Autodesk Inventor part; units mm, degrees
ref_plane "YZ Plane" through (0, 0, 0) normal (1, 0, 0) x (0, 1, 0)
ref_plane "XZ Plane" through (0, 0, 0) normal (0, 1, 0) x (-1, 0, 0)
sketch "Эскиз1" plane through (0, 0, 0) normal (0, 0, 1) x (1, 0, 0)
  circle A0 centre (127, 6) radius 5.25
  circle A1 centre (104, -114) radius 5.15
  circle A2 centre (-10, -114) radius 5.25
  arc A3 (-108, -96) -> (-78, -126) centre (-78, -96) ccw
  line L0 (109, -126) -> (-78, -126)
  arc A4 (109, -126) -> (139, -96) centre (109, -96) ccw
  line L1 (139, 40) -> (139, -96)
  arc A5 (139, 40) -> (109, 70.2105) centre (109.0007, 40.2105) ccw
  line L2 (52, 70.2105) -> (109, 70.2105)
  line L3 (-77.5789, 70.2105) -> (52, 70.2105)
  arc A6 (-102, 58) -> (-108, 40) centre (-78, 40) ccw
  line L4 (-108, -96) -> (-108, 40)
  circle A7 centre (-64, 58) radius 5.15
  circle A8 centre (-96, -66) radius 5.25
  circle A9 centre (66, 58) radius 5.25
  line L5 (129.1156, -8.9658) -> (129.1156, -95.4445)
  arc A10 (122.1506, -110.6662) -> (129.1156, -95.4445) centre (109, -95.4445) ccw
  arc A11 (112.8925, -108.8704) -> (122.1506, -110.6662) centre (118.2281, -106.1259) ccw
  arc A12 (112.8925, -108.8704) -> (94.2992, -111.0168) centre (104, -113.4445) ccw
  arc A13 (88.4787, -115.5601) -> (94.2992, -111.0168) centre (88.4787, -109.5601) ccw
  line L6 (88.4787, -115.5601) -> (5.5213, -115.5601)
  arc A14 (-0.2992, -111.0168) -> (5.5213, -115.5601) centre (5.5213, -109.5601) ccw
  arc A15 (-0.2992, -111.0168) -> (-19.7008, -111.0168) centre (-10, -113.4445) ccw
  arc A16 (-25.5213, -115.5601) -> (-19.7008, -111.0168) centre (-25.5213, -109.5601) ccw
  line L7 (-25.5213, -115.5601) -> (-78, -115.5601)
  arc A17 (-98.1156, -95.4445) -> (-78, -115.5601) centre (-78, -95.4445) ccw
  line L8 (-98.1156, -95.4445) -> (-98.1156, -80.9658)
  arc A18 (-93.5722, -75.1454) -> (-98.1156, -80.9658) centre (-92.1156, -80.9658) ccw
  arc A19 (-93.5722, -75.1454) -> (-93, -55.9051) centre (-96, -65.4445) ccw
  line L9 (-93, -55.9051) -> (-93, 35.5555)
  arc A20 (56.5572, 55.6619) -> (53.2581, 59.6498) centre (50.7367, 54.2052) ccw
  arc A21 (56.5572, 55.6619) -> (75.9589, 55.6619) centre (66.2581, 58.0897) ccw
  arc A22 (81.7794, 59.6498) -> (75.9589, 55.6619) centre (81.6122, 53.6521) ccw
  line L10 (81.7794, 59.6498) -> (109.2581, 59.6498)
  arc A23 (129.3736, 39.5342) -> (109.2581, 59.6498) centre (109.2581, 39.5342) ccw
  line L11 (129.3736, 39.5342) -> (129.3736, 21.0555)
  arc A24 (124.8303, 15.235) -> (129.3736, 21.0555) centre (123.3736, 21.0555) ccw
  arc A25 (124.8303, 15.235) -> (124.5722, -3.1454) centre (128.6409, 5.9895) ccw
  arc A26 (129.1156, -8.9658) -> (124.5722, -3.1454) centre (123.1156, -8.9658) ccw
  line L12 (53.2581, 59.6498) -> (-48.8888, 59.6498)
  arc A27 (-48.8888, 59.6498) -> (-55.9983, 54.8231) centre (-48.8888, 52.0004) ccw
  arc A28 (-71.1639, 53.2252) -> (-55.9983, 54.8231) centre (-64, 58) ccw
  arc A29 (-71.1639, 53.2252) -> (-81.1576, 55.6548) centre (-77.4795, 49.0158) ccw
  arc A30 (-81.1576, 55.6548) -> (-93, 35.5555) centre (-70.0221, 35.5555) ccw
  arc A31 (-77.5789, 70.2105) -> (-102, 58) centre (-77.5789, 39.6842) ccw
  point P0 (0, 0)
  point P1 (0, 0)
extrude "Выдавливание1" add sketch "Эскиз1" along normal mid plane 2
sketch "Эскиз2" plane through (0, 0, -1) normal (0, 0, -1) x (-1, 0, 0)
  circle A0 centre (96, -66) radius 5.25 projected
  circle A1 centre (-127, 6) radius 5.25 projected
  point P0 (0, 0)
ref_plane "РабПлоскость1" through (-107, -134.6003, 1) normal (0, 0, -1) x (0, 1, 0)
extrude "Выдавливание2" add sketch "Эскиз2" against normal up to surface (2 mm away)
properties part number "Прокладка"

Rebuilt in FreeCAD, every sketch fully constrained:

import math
import FreeCAD as App
import Part
import Sketcher

V = App.Vector

doc = App.newDocument("Part")
params = doc.addObject("Spreadsheet::Sheet", "Params")
for row, (alias, value) in enumerate([
    ("sketch1_radius", "30 mm"),
    ("sketch1_radius2", "30 mm"),
    ("sketch1_radius3", "30 mm"),
    ("sketch1_radius4", "30 mm"),
    ("sketch1_radius5", "6 mm"),
    ("pad1_length", "2 mm"),
    ("sketch2_diameter", "10.5 mm"),
    ("pad2_length", "2 mm"),
], start=1):
    params.set(f"A{row}", alias)
    params.set(f"B{row}", "=" + value)
    params.setAlias(f"B{row}", alias)

body = doc.addObject("PartDesign::Body", "Body")

# Sketch on XY plane
sketch1 = body.newObject("Sketcher::SketchObject", "Sketch")
sketch1.AttachmentSupport = (doc.getObject("XY_Plane"), [""])
sketch1.MapMode = "FlatFace"
sketch1.addGeometry([
    Part.LineSegment(V(-108, 40, 0), V(-108, -96, 0)),  # 0
    Part.ArcOfCircle(Part.Circle(V(-78, -96, 0), V(0, 0, 1), 30), math.radians(180), math.radians(270)),  # 1
    Part.LineSegment(V(-78, -126, 0), V(109, -126, 0)),  # 2
    Part.ArcOfCircle(Part.Circle(V(109, -96, 0), V(0, 0, 1), 30), math.radians(-90), math.radians(0)),  # 3
    Part.LineSegment(V(139, -96, 0), V(139, 40, 0)),  # 4
    Part.ArcOfCircle(Part.Circle(V(109.0007, 40.2105, 0), V(0, 0, 1), 30.000039), math.radians(-0.402028), math.radians(90.001337)),  # 5
    Part.LineSegment(V(109, 70.2105, 0), V(-77.5789, 70.2105, 0)),  # 6
    Part.ArcOfCircle(Part.Circle(V(-77.5789, 39.6842, 0), V(0, 0, 1), 30.5263), math.radians(90), math.radians(143.13014)),  # 7
    Part.ArcOfCircle(Part.Circle(V(-78, 40, 0), V(0, 0, 1), 30), math.radians(143.130102), math.radians(180)),  # 8
    Part.Circle(V(-10, -114, 0), V(0, 0, 1), 5.25),  # 9
    Part.Circle(V(-96, -66, 0), V(0, 0, 1), 5.25),  # 10
    Part.Circle(V(104, -114, 0), V(0, 0, 1), 5.15),  # 11
    Part.ArcOfCircle(Part.Circle(V(123.1156, -8.9658, 0), V(0, 0, 1), 6), math.radians(0), math.radians(75.94986)),  # 12
    Part.LineSegment(V(129.1156, -8.9658, 0), V(129.1156, -95.4445, 0)),  # 13
    Part.ArcOfCircle(Part.Circle(V(109, -95.4445, 0), V(0, 0, 1), 20.115627), math.radians(-49.175029), math.radians(0)),  # 14
    Part.ArcOfCircle(Part.Circle(V(118.2281, -106.1259, 0), V(0, 0, 1), 6.000076), math.radians(-152.779837), math.radians(-49.175291)),  # 15
    Part.ArcOfCircle(Part.Circle(V(104, -113.4445, 0), V(0, 0, 1), 9.999947), math.radians(27.220261), math.radians(165.94986)),  # 16
    Part.ArcOfCircle(Part.Circle(V(88.4787, -109.5601, 0), V(0, 0, 1), 6), math.radians(-90), math.radians(-14.050835)),  # 17
    Part.LineSegment(V(88.4787, -115.5601, 0), V(5.5213, -115.5601, 0)),  # 18
    Part.ArcOfCircle(Part.Circle(V(5.5213, -109.5601, 0), V(0, 0, 1), 6.000016), math.radians(-165.949165), math.radians(-90)),  # 19
    Part.ArcOfCircle(Part.Circle(V(-10, -113.4445, 0), V(0, 0, 1), 9.999962), math.radians(14.05014), math.radians(165.94986)),  # 20
    Part.ArcOfCircle(Part.Circle(V(-25.5213, -109.5601, 0), V(0, 0, 1), 6), math.radians(-90), math.radians(-14.050835)),  # 21
    Part.LineSegment(V(-25.5213, -115.5601, 0), V(-78, -115.5601, 0)),  # 22
    Part.ArcOfCircle(Part.Circle(V(-78, -95.4445, 0), V(0, 0, 1), 20.1156), math.radians(180), math.radians(270)),  # 23
    Part.LineSegment(V(-98.1156, -95.4445, 0), V(-98.1156, -80.9658, 0)),  # 24
    Part.ArcOfCircle(Part.Circle(V(-92.1156, -80.9658, 0), V(0, 0, 1), 5.999895), math.radians(104.05014), math.radians(180)),  # 25
    Part.ArcOfCircle(Part.Circle(V(-96, -65.4445, 0), V(0, 0, 1), 10.000084), math.radians(-75.949443), math.radians(72.542411)),  # 26
    Part.LineSegment(V(-93, -55.9051, 0), V(-93, 35.5555, 0)),  # 27
    Part.ArcOfCircle(Part.Circle(V(-70.0221, 35.5555, 0), V(0, 0, 1), 22.977842), math.radians(118.987517), math.radians(180)),  # 28
    Part.ArcOfCircle(Part.Circle(V(-77.4795, 49.0158, 0), V(0, 0, 1), 7.589852), math.radians(33.683786), math.radians(118.987074)),  # 29
    Part.ArcOfCircle(Part.Circle(V(-64, 58, 0), V(0, 0, 1), 8.609308), math.radians(-146.316208), math.radians(-21.65447)),  # 30
    Part.ArcOfCircle(Part.Circle(V(-48.8888, 52.0004, 0), V(0, 0, 1), 7.6494), math.radians(90), math.radians(158.345332)),  # 31
    Part.LineSegment(V(-48.8888, 59.6498, 0), V(53.2581, 59.6498, 0)),  # 32
    Part.ArcOfCircle(Part.Circle(V(50.7367, 54.2052, 0), V(0, 0, 1), 6.000016), math.radians(14.050835), math.radians(65.151096)),  # 33
    Part.ArcOfCircle(Part.Circle(V(66.2581, 58.0897, 0), V(0, 0, 1), 10.000084), math.radians(-165.949443), math.radians(-14.050696)),  # 34
    Part.ArcOfCircle(Part.Circle(V(81.6122, 53.6521, 0), V(0, 0, 1), 6.00003), math.radians(88.403159), math.radians(160.429234)),  # 35
    Part.LineSegment(V(81.7794, 59.6498, 0), V(109.2581, 59.6498, 0)),  # 36
    Part.ArcOfCircle(Part.Circle(V(109.2581, 39.5342, 0), V(0, 0, 1), 20.1155), math.radians(0), math.radians(90)),  # 37
    Part.LineSegment(V(129.3736, 39.5342, 0), V(129.3736, 21.0555, 0)),  # 38
    Part.ArcOfCircle(Part.Circle(V(123.3736, 21.0555, 0), V(0, 0, 1), 6.000016), math.radians(-75.949165), math.radians(0)),  # 39
    Part.ArcOfCircle(Part.Circle(V(128.6409, 5.9895, 0), V(0, 0, 1), 9.999997), math.radians(112.399364), math.radians(245.991727)),  # 40
    Part.Circle(V(-64, 58, 0), V(0, 0, 1), 5.15),  # 41
    Part.Circle(V(127, 6, 0), V(0, 0, 1), 5.25),  # 42
    Part.Circle(V(66, 58, 0), V(0, 0, 1), 5.25),  # 43
], False)
sketch1.addConstraint([
    Sketcher.Constraint("Coincident", 0, 2, 1, 1),
    Sketcher.Constraint("Coincident", 1, 2, 2, 1),
    Sketcher.Constraint("Coincident", 2, 2, 3, 1),
    Sketcher.Constraint("Coincident", 3, 2, 4, 1),
    Sketcher.Constraint("Coincident", 4, 2, 5, 1),
    Sketcher.Constraint("Coincident", 5, 2, 6, 1),
    Sketcher.Constraint("Coincident", 6, 2, 7, 1),
    Sketcher.Constraint("Coincident", 7, 2, 8, 1),
    Sketcher.Constraint("Coincident", 8, 2, 0, 1),
    Sketcher.Constraint("Coincident", 12, 1, 13, 1),
    Sketcher.Constraint("Coincident", 13, 2, 14, 2),
    Sketcher.Constraint("Coincident", 14, 1, 15, 2),
    Sketcher.Constraint("Coincident", 15, 1, 16, 1),
    Sketcher.Constraint("Coincident", 16, 2, 17, 2),
    Sketcher.Constraint("Coincident", 17, 1, 18, 1),
    Sketcher.Constraint("Coincident", 18, 2, 19, 2),
    Sketcher.Constraint("Coincident", 19, 1, 20, 1),
    Sketcher.Constraint("Coincident", 20, 2, 21, 2),
    Sketcher.Constraint("Coincident", 21, 1, 22, 1),
    Sketcher.Constraint("Coincident", 22, 2, 23, 2),
    Sketcher.Constraint("Coincident", 23, 1, 24, 1),
    Sketcher.Constraint("Coincident", 24, 2, 25, 2),
    Sketcher.Constraint("Coincident", 25, 1, 26, 1),
    Sketcher.Constraint("Coincident", 26, 2, 27, 1),
    Sketcher.Constraint("Coincident", 27, 2, 28, 2),
    Sketcher.Constraint("Coincident", 28, 1, 29, 2),
    Sketcher.Constraint("Coincident", 29, 1, 30, 1),
    Sketcher.Constraint("Coincident", 30, 2, 31, 2),
    Sketcher.Constraint("Coincident", 31, 1, 32, 1),
    Sketcher.Constraint("Coincident", 32, 2, 33, 2),
    Sketcher.Constraint("Coincident", 33, 1, 34, 1),
    Sketcher.Constraint("Coincident", 34, 2, 35, 2),
    Sketcher.Constraint("Coincident", 35, 1, 36, 1),
    Sketcher.Constraint("Coincident", 36, 2, 37, 2),
    Sketcher.Constraint("Coincident", 37, 1, 38, 1),
    Sketcher.Constraint("Coincident", 38, 2, 39, 2),
    Sketcher.Constraint("Coincident", 39, 1, 40, 1),
    Sketcher.Constraint("Coincident", 40, 2, 12, 2),
    Sketcher.Constraint("Vertical", 0),
    Sketcher.Constraint("Horizontal", 2),
    Sketcher.Constraint("Vertical", 4),
    Sketcher.Constraint("Horizontal", 6),
    Sketcher.Constraint("Vertical", 13),
    Sketcher.Constraint("Horizontal", 18),
    Sketcher.Constraint("Horizontal", 22),
    Sketcher.Constraint("Vertical", 24),
    Sketcher.Constraint("Vertical", 27),
    Sketcher.Constraint("Horizontal", 32),
    Sketcher.Constraint("Horizontal", 36),
    Sketcher.Constraint("Vertical", 38),
    Sketcher.Constraint("Coincident", 41, 3, 30, 3),
    Sketcher.Constraint("Radius", 1, 30.0),
    Sketcher.Constraint("Radius", 3, 30.0),
    Sketcher.Constraint("Radius", 5, 30.0),
    Sketcher.Constraint("Radius", 8, 30.0),
    Sketcher.Constraint("Radius", 12, 6.0),
    Sketcher.Constraint("Radius", 15, 6.0),
    Sketcher.Constraint("Radius", 16, 10.0),
    Sketcher.Constraint("Radius", 17, 6.0),
    Sketcher.Constraint("Radius", 19, 6.0),
    Sketcher.Constraint("Radius", 20, 10.0),
    Sketcher.Constraint("Radius", 21, 6.0),
    Sketcher.Constraint("Radius", 25, 6.0),
    Sketcher.Constraint("Radius", 26, 10.0),
    Sketcher.Constraint("Radius", 33, 6.0),
    Sketcher.Constraint("Radius", 34, 10.0),
    Sketcher.Constraint("Radius", 35, 6.0),
    Sketcher.Constraint("Radius", 39, 6.0),
    Sketcher.Constraint("Radius", 40, 10.0),
    Sketcher.Constraint("Diameter", 9, 10.5),
    Sketcher.Constraint("Diameter", 10, 10.5),
    Sketcher.Constraint("Diameter", 11, 10.3),
    Sketcher.Constraint("Diameter", 41, 10.3),
    Sketcher.Constraint("Diameter", 42, 10.5),
    Sketcher.Constraint("Diameter", 43, 10.5),
    Sketcher.Constraint("DistanceX", 2, 1, 2, 2, 187.0),
    Sketcher.Constraint("DistanceY", 0, 2, 0, 1, 136.0),
    Sketcher.Constraint("DistanceY", 4, 1, 4, 2, 136.0),
    Sketcher.Constraint("DistanceX", 1, 3, -1, 1, 78.0),
    Sketcher.Constraint("DistanceY", 1, 3, -1, 1, 96.0),
    Sketcher.Constraint("DistanceX", -1, 1, 3, 3, 109.0),
    Sketcher.Constraint("DistanceY", -1, 1, 8, 3, 40.0),
    Sketcher.Constraint("DistanceX", 9, 3, -1, 1, 10.0),
    Sketcher.Constraint("DistanceY", 9, 3, -1, 1, 114.0),
    Sketcher.Constraint("DistanceX", 10, 3, -1, 1, 96.0),
    Sketcher.Constraint("DistanceY", 10, 3, -1, 1, 66.0),
    Sketcher.Constraint("DistanceX", -1, 1, 11, 3, 104.0),
    Sketcher.Constraint("DistanceY", 11, 3, -1, 1, 114.0),
    Sketcher.Constraint("DistanceX", -1, 1, 14, 3, 109.0),
    Sketcher.Constraint("DistanceX", -1, 1, 16, 3, 104.0),
    Sketcher.Constraint("DistanceX", 20, 3, -1, 1, 10.0),
    Sketcher.Constraint("DistanceX", 23, 3, -1, 1, 78.0),
    Sketcher.Constraint("DistanceX", 26, 3, -1, 1, 96.0),
    Sketcher.Constraint("DistanceX", 30, 3, -1, 1, 64.0),
    Sketcher.Constraint("DistanceY", -1, 1, 30, 3, 58.0),
    Sketcher.Constraint("DistanceX", -1, 1, 42, 3, 127.0),
    Sketcher.Constraint("DistanceY", -1, 1, 42, 3, 6.0),
    Sketcher.Constraint("DistanceX", -1, 1, 43, 3, 66.0),
    Sketcher.Constraint("DistanceY", -1, 1, 43, 3, 58.0),
    Sketcher.Constraint("DistanceY", 0, 2, -1, 1, 96.0),
    Sketcher.Constraint("DistanceX", 1, 2, -1, 1, 78.0),
    Sketcher.Constraint("DistanceY", 3, 2, -1, 1, 96.0),
    Sketcher.Constraint("DistanceX", -1, 1, 5, 2, 109.0),
    Sketcher.Constraint("DistanceX", 7, 2, -1, 1, 102.0),
    Sketcher.Constraint("DistanceX", 22, 2, -1, 1, 78.0),
    Sketcher.Constraint("DistanceX", 26, 2, -1, 1, 93.0),
    Sketcher.Constraint("Radius", 7, 30.5263),
    Sketcher.Constraint("Radius", 14, 20.1156),
    Sketcher.Constraint("Radius", 23, 20.1156),
    Sketcher.Constraint("Radius", 28, 22.9778),
    Sketcher.Constraint("Radius", 29, 7.5899),
    Sketcher.Constraint("Radius", 30, 8.6093),
    Sketcher.Constraint("Radius", 31, 7.6494),
    Sketcher.Constraint("Radius", 37, 20.1155),
    Sketcher.Constraint("DistanceX", 6, 2, 6, 1, 186.579),
    Sketcher.Constraint("DistanceX", 32, 1, 32, 2, 102.147),
    Sketcher.Constraint("DistanceY", 17, 3, -1, 1, 109.56),
    Sketcher.Constraint("DistanceY", 21, 3, -1, 1, 109.56),
    Sketcher.Constraint("DistanceX", 18, 2, 18, 1, 82.9574),
    Sketcher.Constraint("DistanceX", 22, 2, 22, 1, 52.4787),
    Sketcher.Constraint("DistanceX", 36, 1, 36, 2, 27.4787),
    Sketcher.Constraint("DistanceY", 13, 2, 13, 1, 86.4787),
    Sketcher.Constraint("DistanceY", 24, 1, 24, 2, 14.4787),
    Sketcher.Constraint("DistanceY", 27, 1, 27, 2, 91.4606),
    Sketcher.Constraint("DistanceY", 38, 2, 38, 1, 18.4787),
    Sketcher.Constraint("DistanceX", 7, 3, -1, 1, 77.579),
    Sketcher.Constraint("DistanceX", -1, 1, 15, 3, 118.228),
    Sketcher.Constraint("DistanceY", 15, 3, -1, 1, 106.126),
    Sketcher.Constraint("DistanceX", -1, 1, 34, 3, 66.258),
    Sketcher.Constraint("DistanceY", -1, 1, 35, 3, 53.652),
    Sketcher.Constraint("DistanceX", -1, 1, 37, 3, 109.258),
    Sketcher.Constraint("DistanceX", -1, 1, 40, 3, 128.641),
    Sketcher.Constraint("DistanceY", 26, 2, -1, 1, 55.905),
    Sketcher.Constraint("DistanceX", 29, 1, -1, 1, 71.164),
    Sketcher.Constraint("DistanceY", -1, 1, 30, 2, 54.823),
    Sketcher.Constraint("DistanceX", -1, 1, 32, 2, 53.258),
    Sketcher.Constraint("DistanceY", -1, 1, 33, 1, 55.662),
    Sketcher.Constraint("DistanceX", -1, 1, 34, 2, 75.959),
    Sketcher.Constraint("DistanceX", -1, 1, 36, 2, 109.258),
    Sketcher.Constraint("DistanceY", -1, 1, 39, 1, 15.235),
    Sketcher.Constraint("DistanceY", 12, 3, -1, 1, 8.9658),
    Sketcher.Constraint("DistanceX", -1, 1, 19, 3, 5.5213),
    Sketcher.Constraint("DistanceY", -1, 1, 28, 3, 35.5555),
    Sketcher.Constraint("DistanceX", 31, 3, -1, 1, 48.8888),
    Sketcher.Constraint("DistanceX", -1, 1, 33, 3, 50.7367),
    Sketcher.Constraint("DistanceY", -1, 1, 39, 3, 21.0555),
    Sketcher.Constraint("DistanceY", 12, 1, -1, 1, 8.9658),
    Sketcher.Constraint("DistanceX", -1, 1, 14, 1, 122.1506),
    Sketcher.Constraint("DistanceX", -1, 1, 15, 1, 112.8925),
    Sketcher.Constraint("DistanceX", -1, 1, 16, 2, 94.2992),
    Sketcher.Constraint("DistanceX", -1, 1, 17, 1, 88.4787),
    Sketcher.Constraint("DistanceX", 19, 1, -1, 1, 0.2992),
    Sketcher.Constraint("DistanceX", 20, 2, -1, 1, 19.7008),
    Sketcher.Constraint("DistanceY", 23, 1, -1, 1, 95.4445),
    Sketcher.Constraint("DistanceX", 25, 1, -1, 1, 93.5722),
    Sketcher.Constraint("DistanceX", 28, 1, -1, 1, 81.1576),
    Sketcher.Constraint("DistanceY", -1, 1, 37, 1, 39.5342),
])
sketch1.setExpression("Constraints[51]", "Params.sketch1_radius")
sketch1.setExpression("Constraints[52]", "Params.sketch1_radius2")
sketch1.setExpression("Constraints[53]", "Params.sketch1_radius3")
sketch1.setExpression("Constraints[54]", "Params.sketch1_radius4")
sketch1.setExpression("Constraints[55]", "Params.sketch1_radius5")
pad1 = body.newObject("PartDesign::Pad", "Pad")
pad1.Profile = sketch1
pad1.setExpression("Length", "Params.pad1_length")
pad1.Midplane = True

# Sketch on XY plane
sketch2 = body.newObject("Sketcher::SketchObject", "Sketch001")
sketch2.AttachmentSupport = (doc.getObject("XY_Plane"), [""])
sketch2.MapMode = "FlatFace"
sketch2.AttachmentOffset = App.Placement(V(0, 0, -1), App.Rotation())
sketch2.addGeometry([
    Part.Circle(V(-96, -66, 0), V(0, 0, 1), 5),
    Part.Circle(V(127, 6, 0), V(0, 0, 1), 5),
], False)
sketch2.addConstraint([
    Sketcher.Constraint("Equal", 0, 1),
    Sketcher.Constraint("Diameter", 0, 10.5),
    Sketcher.Constraint("DistanceX", 0, 3, -1, 1, 96.0),
    Sketcher.Constraint("DistanceY", 0, 3, -1, 1, 66.0),
    Sketcher.Constraint("DistanceX", -1, 1, 1, 3, 127.0),
    Sketcher.Constraint("DistanceY", -1, 1, 1, 3, 6.0),
])
sketch2.setExpression("Constraints[1]", "Params.sketch2_diameter")
pad2 = body.newObject("PartDesign::Pad", "Pad001")
pad2.Profile = sketch2
pad2.setExpression("Length", "Params.pad2_length")

doc.recompute()
